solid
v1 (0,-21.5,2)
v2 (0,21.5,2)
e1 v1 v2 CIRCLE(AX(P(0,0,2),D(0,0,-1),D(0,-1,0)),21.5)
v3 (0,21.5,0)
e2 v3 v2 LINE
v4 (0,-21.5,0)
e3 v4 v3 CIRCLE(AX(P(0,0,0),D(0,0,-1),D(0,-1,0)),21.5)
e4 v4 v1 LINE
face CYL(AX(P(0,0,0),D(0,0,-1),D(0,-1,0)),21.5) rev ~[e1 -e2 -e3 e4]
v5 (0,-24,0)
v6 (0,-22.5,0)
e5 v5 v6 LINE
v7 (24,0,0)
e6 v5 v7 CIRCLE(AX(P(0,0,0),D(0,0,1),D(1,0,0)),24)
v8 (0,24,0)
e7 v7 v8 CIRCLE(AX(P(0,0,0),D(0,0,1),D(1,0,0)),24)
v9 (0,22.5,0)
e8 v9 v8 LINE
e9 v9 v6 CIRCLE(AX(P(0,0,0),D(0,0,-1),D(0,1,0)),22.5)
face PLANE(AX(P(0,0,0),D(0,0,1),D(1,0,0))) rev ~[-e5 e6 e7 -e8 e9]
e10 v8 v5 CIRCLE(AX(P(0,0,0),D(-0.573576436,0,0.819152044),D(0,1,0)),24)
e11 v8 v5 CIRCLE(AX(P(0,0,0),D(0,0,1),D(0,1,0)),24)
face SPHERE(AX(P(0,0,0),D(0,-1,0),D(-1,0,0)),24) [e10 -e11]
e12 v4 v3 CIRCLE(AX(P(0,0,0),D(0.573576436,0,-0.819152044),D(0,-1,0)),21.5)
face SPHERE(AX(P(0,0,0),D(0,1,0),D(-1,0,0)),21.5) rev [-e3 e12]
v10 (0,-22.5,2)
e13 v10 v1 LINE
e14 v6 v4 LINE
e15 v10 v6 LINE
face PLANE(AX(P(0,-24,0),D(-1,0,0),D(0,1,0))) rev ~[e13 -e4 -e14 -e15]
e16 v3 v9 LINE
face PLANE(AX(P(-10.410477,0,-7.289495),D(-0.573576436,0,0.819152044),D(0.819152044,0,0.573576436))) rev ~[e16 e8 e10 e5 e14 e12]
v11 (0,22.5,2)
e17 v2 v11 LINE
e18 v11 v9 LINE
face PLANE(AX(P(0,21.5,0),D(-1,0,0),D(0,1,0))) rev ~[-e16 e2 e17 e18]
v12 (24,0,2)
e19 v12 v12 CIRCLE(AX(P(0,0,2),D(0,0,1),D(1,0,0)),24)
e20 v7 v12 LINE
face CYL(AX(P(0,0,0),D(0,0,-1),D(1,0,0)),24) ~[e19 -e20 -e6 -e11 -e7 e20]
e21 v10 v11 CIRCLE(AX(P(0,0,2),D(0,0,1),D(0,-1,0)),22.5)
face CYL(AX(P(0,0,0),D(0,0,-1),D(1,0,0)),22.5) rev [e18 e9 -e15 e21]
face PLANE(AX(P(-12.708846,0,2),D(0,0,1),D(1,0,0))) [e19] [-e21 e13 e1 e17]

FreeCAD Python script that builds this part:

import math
import FreeCAD as App
import Part
import Sketcher

V = App.Vector
Q = App.Units.Quantity

doc = App.newDocument("Part")
params = doc.addObject("Spreadsheet::Sheet", "Params")
for row, (alias, value) in enumerate([
    ("sketch1_diameter", "48 mm"),
    ("sketch1_diameter2", "45 mm"),
    ("pad1_length", "2 mm"),
    ("sketch2_radius", "24 mm"),
    ("sketch2_radius2", "21.5 mm"),
    ("revolution_angle", "35 deg"),
    ("sketch3_radius", "24 mm"),
    ("sketch3_radius2", "21.5 mm"),
    ("pad2_length", "2 mm"),
], start=1):
    params.set(f"A{row}", alias)
    params.set(f"B{row}", "=" + value)
    params.setAlias(f"B{row}", alias)

body = doc.addObject("PartDesign::Body", "Body")

# Sketch on XY plane
sketch1 = doc.addObject("Sketcher::SketchObject", "Sketch")
body.addObject(sketch1)
sketch1.AttachmentSupport = (doc.XY_Plane, [""])
sketch1.MapMode = "FlatFace"
sketch1.addGeometry([
    Part.Circle(V(0, 0, 0), V(0, 0, 1), 24),
    Part.Circle(V(0, 0, 0), V(0, 0, 1), 22.5),
], False)
sketch1.addConstraint([
    Sketcher.Constraint("Coincident", 0, 3, -1, 1),
    Sketcher.Constraint("Coincident", 1, 3, -1, 1),
    Sketcher.Constraint("Diameter", 0, Q("48 mm")),
    Sketcher.Constraint("Diameter", 1, Q("45 mm")),
])
sketch1.setExpression("Constraints[2]", "Params.sketch1_diameter")
sketch1.setExpression("Constraints[3]", "Params.sketch1_diameter2")
pad1 = doc.addObject("PartDesign::Pad", "Pad")
body.addObject(pad1)
pad1.Profile = sketch1
pad1.setExpression("Length", "Params.pad1_length")

# Sketch on XY plane
sketch2 = doc.addObject("Sketcher::SketchObject", "Sketch001")
body.addObject(sketch2)
sketch2.AttachmentSupport = (doc.XY_Plane, [""])
sketch2.MapMode = "FlatFace"
sketch2.addGeometry([
    Part.LineSegment(V(0, 21.5, 0), V(0, 24, 0)),
    Part.ArcOfCircle(Part.Circle(V(0, 0, 0), V(0, 0, 1), 24), math.radians(90), math.radians(270)),
    Part.LineSegment(V(0, -24, 0), V(0, -21.5, 0)),
    Part.ArcOfCircle(Part.Circle(V(0, 0, 0), V(0, 0, 1), 21.5), math.radians(90), math.radians(270)),
], False)
sketch2.addConstraint([
    Sketcher.Constraint("Coincident", 0, 2, 1, 1),
    Sketcher.Constraint("Coincident", 1, 2, 2, 1),
    Sketcher.Constraint("Coincident", 2, 2, 3, 2),
    Sketcher.Constraint("Coincident", 3, 1, 0, 1),
    Sketcher.Constraint("Vertical", 0),
    Sketcher.Constraint("Vertical", 2),
    Sketcher.Constraint("Coincident", 1, 3, -1, 1),
    Sketcher.Constraint("Coincident", 3, 3, -1, 1),
    Sketcher.Constraint("PointOnObject", 0, 2, -2),
    Sketcher.Constraint("PointOnObject", 1, 2, -2),
    Sketcher.Constraint("Radius", 1, Q("24 mm")),
    Sketcher.Constraint("Radius", 3, Q("21.5 mm")),
])
sketch2.setExpression("Constraints[10]", "Params.sketch2_radius")
sketch2.setExpression("Constraints[11]", "Params.sketch2_radius2")
revolution = doc.addObject("PartDesign::Revolution", "Revolution")
body.addObject(revolution)
revolution.Profile = sketch2
revolution.ReferenceAxis = (sketch2, ["V_Axis"])
revolution.setExpression("Angle", "Params.revolution_angle")
revolution.Reversed = True

# Sketch on XY plane
sketch3 = doc.addObject("Sketcher::SketchObject", "Sketch002")
body.addObject(sketch3)
sketch3.AttachmentSupport = (doc.XY_Plane, [""])
sketch3.MapMode = "FlatFace"
sketch3.addGeometry([
    Part.LineSegment(V(0, 21.5, 0), V(0, 24, 0)),
    Part.ArcOfCircle(Part.Circle(V(0, 0, 0), V(0, 0, 1), 24), math.radians(90), math.radians(270)),
    Part.LineSegment(V(0, -24, 0), V(0, -21.5, 0)),
    Part.ArcOfCircle(Part.Circle(V(0, 0, 0), V(0, 0, 1), 21.5), math.radians(90), math.radians(270)),
], False)
sketch3.addConstraint([
    Sketcher.Constraint("Coincident", 0, 2, 1, 1),
    Sketcher.Constraint("Coincident", 1, 2, 2, 1),
    Sketcher.Constraint("Coincident", 2, 2, 3, 2),
    Sketcher.Constraint("Coincident", 3, 1, 0, 1),
    Sketcher.Constraint("Vertical", 0),
    Sketcher.Constraint("Vertical", 2),
    Sketcher.Constraint("Coincident", 1, 3, -1, 1),
    Sketcher.Constraint("Coincident", 3, 3, -1, 1),
    Sketcher.Constraint("PointOnObject", 0, 2, -2),
    Sketcher.Constraint("PointOnObject", 1, 2, -2),
    Sketcher.Constraint("Radius", 1, Q("24 mm")),
    Sketcher.Constraint("Radius", 3, Q("21.5 mm")),
])
sketch3.setExpression("Constraints[10]", "Params.sketch3_radius")
sketch3.setExpression("Constraints[11]", "Params.sketch3_radius2")
pad2 = doc.addObject("PartDesign::Pad", "Pad001")
body.addObject(pad2)
pad2.Profile = sketch3
pad2.setExpression("Length", "Params.pad2_length")

doc.recompute()
